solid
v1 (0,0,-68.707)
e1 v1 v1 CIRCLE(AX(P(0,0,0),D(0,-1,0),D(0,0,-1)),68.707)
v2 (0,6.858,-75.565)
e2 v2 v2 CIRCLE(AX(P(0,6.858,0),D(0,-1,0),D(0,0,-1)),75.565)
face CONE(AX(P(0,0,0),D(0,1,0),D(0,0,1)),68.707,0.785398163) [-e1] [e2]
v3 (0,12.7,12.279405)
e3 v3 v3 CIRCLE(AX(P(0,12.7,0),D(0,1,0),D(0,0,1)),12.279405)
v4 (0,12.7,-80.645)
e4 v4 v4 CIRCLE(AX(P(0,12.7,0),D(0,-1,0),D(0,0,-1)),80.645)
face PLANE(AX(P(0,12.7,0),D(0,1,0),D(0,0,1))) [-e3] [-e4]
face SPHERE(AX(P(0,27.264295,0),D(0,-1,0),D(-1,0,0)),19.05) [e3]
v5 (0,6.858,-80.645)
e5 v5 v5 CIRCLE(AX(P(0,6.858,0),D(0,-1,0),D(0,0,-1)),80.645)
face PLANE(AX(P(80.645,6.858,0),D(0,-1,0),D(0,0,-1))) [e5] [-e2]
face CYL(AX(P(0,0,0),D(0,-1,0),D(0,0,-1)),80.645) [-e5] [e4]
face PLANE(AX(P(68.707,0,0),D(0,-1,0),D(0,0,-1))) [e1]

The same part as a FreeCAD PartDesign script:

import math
import FreeCAD as App
import Part
import Sketcher

V = App.Vector
Q = App.Units.Quantity

doc = App.newDocument("Part")
body = doc.addObject("PartDesign::Body", "Body")

sketch1 = body.newObject("Sketcher::SketchObject", "Sketch")
sketch1.AttachmentSupport = (doc.getObject("XY_Plane"), [""])
sketch1.MapMode = "FlatFace"
sketch1.addGeometry(Part.LineSegment(V(81, 7, 0), V(81, 13, 0)), False)
sketch1.addGeometry(Part.LineSegment(V(81, 13, 0), V(0, 13, 0)), False)
sketch1.addGeometry(Part.LineSegment(V(0, 13, 0), V(0, 0, 0)), False)
sketch1.addGeometry(Part.LineSegment(V(0, 0, 0), V(69, 0, 0)), False)
sketch1.addGeometry(Part.LineSegment(V(69, 0, 0), V(76, 7, 0)), False)
sketch1.addGeometry(Part.LineSegment(V(76, 7, 0), V(81, 7, 0)), False)
sketch1.addConstraint(Sketcher.Constraint("Coincident", 0, 2, 1, 1))
sketch1.addConstraint(Sketcher.Constraint("Coincident", 1, 2, 2, 1))
sketch1.addConstraint(Sketcher.Constraint("Coincident", 2, 2, 3, 1))
sketch1.addConstraint(Sketcher.Constraint("Coincident", 3, 2, 4, 1))
sketch1.addConstraint(Sketcher.Constraint("Coincident", 4, 2, 5, 1))
sketch1.addConstraint(Sketcher.Constraint("Coincident", 5, 2, 0, 1))
sketch1.addConstraint(Sketcher.Constraint("Vertical", 0))
sketch1.addConstraint(Sketcher.Constraint("Horizontal", 1))
sketch1.addConstraint(Sketcher.Constraint("Vertical", 2))
sketch1.addConstraint(Sketcher.Constraint("Horizontal", 3))
sketch1.addConstraint(Sketcher.Constraint("Horizontal", 5))
sketch1.addConstraint(Sketcher.Constraint("Coincident", 2, 2, -1, 1))
sketch1.addConstraint(Sketcher.Constraint("DistanceX", 5, 1, 5, 2, Q("0.2 in")))
sketch1.addConstraint(Sketcher.Constraint("DistanceY", 2, 2, 2, 1, Q("0.5 in")))
sketch1.addConstraint(Sketcher.Constraint("Angle", 4, Q("45 deg")))
sketch1.addConstraint(Sketcher.Constraint("DistanceY", 0, 1, 0, 2, Q("0.23 in")))
sketch1.addConstraint(Sketcher.Constraint("DistanceX", 1, 2, 1, 1, Q("3.175 in")))
revolution = body.newObject("PartDesign::Revolution", "Revolution")
revolution.Profile = sketch1
revolution.ReferenceAxis = (sketch1, ["V_Axis"])
revolution.Angle = 360

sketch2 = body.newObject("Sketcher::SketchObject", "Sketch001")
sketch2.AttachmentSupport = (doc.getObject("XY_Plane"), [""])
sketch2.MapMode = "FlatFace"
sketch2.addGeometry(Part.LineSegment(V(0, 46, 0), V(0, 8, 0)), False)
sketch2.addGeometry(Part.ArcOfCircle(Part.Circle(V(0, 27, 0), V(0, 0, 1), 19), math.radians(-90), math.radians(90)), False)
sketch2.addConstraint(Sketcher.Constraint("Coincident", 0, 1, 1, 2))
sketch2.addConstraint(Sketcher.Constraint("Coincident", 1, 1, 0, 2))
sketch2.addConstraint(Sketcher.Constraint("Vertical", 0))
sketch2.addConstraint(Sketcher.Constraint("PointOnObject", 1, 3, -2))
sketch2.addConstraint(Sketcher.Constraint("PointOnObject", 0, 1, -2))
sketch2.addConstraint(Sketcher.Constraint("Radius", 1, Q("0.75 in")))
sketch2.addConstraint(Sketcher.Constraint("DistanceY", -1, 1, 1, 3, Q("27.264295 mm")))
revolution2 = body.newObject("PartDesign::Revolution", "Revolution001")
revolution2.Profile = sketch2
revolution2.ReferenceAxis = (sketch2, ["V_Axis"])
revolution2.Angle = 360

doc.recompute()
